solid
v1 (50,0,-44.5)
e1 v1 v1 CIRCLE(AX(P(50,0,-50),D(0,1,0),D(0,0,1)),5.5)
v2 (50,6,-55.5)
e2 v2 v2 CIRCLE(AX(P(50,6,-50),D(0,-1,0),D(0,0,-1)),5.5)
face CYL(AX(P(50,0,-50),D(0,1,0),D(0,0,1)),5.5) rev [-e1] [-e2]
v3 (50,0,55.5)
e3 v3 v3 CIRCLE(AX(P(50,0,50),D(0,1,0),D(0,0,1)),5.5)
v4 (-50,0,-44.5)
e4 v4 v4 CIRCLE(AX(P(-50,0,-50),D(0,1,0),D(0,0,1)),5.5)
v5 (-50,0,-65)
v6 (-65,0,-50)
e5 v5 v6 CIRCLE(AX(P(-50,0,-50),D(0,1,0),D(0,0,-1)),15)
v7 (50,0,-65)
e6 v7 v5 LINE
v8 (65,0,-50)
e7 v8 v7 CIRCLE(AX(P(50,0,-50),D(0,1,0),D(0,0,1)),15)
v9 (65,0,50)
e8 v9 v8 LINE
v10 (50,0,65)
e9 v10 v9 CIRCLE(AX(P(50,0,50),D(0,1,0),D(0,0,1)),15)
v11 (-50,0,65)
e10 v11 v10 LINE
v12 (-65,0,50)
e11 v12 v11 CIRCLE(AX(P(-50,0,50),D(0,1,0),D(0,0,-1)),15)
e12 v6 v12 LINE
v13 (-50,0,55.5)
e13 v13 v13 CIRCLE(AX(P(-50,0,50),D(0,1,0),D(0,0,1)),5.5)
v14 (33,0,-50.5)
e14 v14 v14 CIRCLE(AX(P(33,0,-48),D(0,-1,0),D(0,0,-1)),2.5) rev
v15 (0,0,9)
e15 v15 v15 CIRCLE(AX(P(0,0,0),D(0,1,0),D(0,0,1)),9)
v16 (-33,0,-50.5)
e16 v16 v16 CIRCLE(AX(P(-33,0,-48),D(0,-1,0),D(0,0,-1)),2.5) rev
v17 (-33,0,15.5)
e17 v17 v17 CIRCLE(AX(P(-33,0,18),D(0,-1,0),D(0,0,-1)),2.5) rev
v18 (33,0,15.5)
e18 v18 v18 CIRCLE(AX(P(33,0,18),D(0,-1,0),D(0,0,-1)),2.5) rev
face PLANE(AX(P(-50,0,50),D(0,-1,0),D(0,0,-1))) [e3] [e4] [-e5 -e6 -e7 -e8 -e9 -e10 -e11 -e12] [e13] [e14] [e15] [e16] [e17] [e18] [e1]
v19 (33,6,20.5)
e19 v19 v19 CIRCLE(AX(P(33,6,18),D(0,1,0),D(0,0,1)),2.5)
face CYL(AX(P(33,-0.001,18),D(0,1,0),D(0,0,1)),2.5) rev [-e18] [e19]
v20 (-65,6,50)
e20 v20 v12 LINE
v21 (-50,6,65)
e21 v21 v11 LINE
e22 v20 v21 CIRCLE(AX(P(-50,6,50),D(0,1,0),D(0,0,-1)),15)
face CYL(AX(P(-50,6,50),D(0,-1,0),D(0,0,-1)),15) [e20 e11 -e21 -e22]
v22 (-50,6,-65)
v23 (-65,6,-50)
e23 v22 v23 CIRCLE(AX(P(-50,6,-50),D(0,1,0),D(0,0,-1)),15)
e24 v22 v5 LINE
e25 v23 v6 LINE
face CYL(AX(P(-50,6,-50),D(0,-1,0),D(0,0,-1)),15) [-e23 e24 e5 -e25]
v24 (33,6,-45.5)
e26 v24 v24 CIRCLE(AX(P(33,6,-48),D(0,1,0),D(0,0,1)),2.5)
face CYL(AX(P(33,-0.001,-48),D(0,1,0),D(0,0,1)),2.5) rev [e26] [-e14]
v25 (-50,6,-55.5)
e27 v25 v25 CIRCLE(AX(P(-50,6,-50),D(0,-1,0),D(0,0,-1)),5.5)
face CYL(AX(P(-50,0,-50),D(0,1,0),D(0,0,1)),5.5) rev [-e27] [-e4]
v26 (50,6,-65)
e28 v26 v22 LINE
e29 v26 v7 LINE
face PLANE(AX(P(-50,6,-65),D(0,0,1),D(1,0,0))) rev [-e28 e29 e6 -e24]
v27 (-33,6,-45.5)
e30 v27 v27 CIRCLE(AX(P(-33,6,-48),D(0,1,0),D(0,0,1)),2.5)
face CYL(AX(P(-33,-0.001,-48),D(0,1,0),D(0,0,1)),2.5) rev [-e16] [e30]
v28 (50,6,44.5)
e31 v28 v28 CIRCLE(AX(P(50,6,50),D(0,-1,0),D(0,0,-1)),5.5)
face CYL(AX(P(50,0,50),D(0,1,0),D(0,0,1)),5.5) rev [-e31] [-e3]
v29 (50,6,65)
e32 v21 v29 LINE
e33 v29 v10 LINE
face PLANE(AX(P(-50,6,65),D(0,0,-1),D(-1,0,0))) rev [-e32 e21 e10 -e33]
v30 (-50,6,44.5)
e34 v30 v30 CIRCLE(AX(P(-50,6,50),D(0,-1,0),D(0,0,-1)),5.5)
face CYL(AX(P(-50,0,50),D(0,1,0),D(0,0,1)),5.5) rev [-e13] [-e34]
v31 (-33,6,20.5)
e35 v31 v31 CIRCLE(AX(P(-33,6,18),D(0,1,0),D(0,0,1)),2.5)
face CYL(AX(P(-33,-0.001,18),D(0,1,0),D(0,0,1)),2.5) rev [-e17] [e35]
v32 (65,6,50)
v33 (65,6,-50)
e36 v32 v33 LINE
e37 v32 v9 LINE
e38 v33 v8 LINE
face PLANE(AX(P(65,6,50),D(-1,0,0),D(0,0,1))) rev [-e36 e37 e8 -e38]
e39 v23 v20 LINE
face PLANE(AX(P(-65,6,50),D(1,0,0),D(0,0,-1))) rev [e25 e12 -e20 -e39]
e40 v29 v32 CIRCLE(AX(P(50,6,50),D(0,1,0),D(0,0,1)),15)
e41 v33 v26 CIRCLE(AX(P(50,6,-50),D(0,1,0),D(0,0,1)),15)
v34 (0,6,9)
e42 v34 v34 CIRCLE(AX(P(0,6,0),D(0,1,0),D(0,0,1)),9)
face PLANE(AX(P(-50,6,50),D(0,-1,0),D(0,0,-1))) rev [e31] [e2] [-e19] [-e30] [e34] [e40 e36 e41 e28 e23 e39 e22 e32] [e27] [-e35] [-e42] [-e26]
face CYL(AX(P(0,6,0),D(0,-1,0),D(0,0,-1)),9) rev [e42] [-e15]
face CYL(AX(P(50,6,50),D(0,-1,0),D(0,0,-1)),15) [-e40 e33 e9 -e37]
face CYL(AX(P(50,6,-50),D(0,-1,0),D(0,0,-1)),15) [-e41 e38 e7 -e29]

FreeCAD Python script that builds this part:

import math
import FreeCAD as App
import Part
import Sketcher

V = App.Vector

doc = App.newDocument("Part")
params = doc.addObject("Spreadsheet::Sheet", "Params")
for row, (alias, value) in enumerate([
    ("sketch1_diameter", "18 mm"),
    ("sketch1_radius", "15 mm"),
    ("sketch1_width", "100 mm"),
    ("pad1_length", "6 mm"),
    ("sketch2_diameter", "11 mm"),
    ("sketch3_diameter", "5 mm"),
    ("sketch4_diameter", "5 mm"),
    ("sketch5_diameter", "5 mm"),
    ("sketch6_diameter", "5 mm"),
], start=1):
    params.set(f"A{row}", alias)
    params.set(f"B{row}", "=" + value)
    params.setAlias(f"B{row}", alias)

body = doc.addObject("PartDesign::Body", "Body")

# Sketch on XZ plane
sketch1 = doc.addObject("Sketcher::SketchObject", "Sketch")
body.addObject(sketch1)
sketch1.AttachmentSupport = (doc.XZ_Plane, [""])
sketch1.MapMode = "FlatFace"
sketch1.addGeometry([
    Part.LineSegment(V(-50, 65, 0), V(50, 65, 0)),  # 0
    Part.ArcOfCircle(Part.Circle(V(50, 50, 0), V(0, 0, 1), 15), math.radians(0), math.radians(90)),  # 1
    Part.LineSegment(V(65, 50, 0), V(65, -50, 0)),  # 2
    Part.ArcOfCircle(Part.Circle(V(50, -50, 0), V(0, 0, 1), 15), math.radians(-90), math.radians(0)),  # 3
    Part.LineSegment(V(50, -65, 0), V(-50, -65, 0)),  # 4
    Part.ArcOfCircle(Part.Circle(V(-50, -50, 0), V(0, 0, 1), 15), math.radians(180), math.radians(270)),  # 5
    Part.LineSegment(V(-65, -50, 0), V(-65, 50, 0)),  # 6
    Part.ArcOfCircle(Part.Circle(V(-50, 50, 0), V(0, 0, 1), 15), math.radians(90), math.radians(180)),  # 7
    Part.Circle(V(0, 0, 0), V(0, 0, 1), 9),  # 8
], False)
sketch1.addConstraint([
    Sketcher.Constraint("Tangent", 0, 2, 1, 2),
    Sketcher.Constraint("Tangent", 1, 1, 2, 1),
    Sketcher.Constraint("Tangent", 2, 2, 3, 2),
    Sketcher.Constraint("Tangent", 3, 1, 4, 1),
    Sketcher.Constraint("Tangent", 4, 2, 5, 2),
    Sketcher.Constraint("Tangent", 5, 1, 6, 1),
    Sketcher.Constraint("Tangent", 6, 2, 7, 2),
    Sketcher.Constraint("Tangent", 7, 1, 0, 1),
    Sketcher.Constraint("Horizontal", 0),
    Sketcher.Constraint("Vertical", 2),
    Sketcher.Constraint("Horizontal", 4),
    Sketcher.Constraint("Vertical", 6),
    Sketcher.Constraint("Coincident", 8, 3, -1, 1),
    Sketcher.Constraint("Equal", 1, 3),
    Sketcher.Constraint("Equal", 3, 5),
    Sketcher.Constraint("Equal", 5, 7),
    Sketcher.Constraint("Symmetric", 1, 3, 5, 3, -1, 1),
    Sketcher.Constraint("Equal", 4, 2),
    Sketcher.Constraint("Diameter", 8, 18.0),
    Sketcher.Constraint("Radius", 1, 15.0),
    Sketcher.Constraint("DistanceX", 0, 1, 0, 2, 100.0),
])
sketch1.setExpression("Constraints[18]", "Params.sketch1_diameter")
sketch1.setExpression("Constraints[19]", "Params.sketch1_radius")
sketch1.setExpression("Constraints[20]", "Params.sketch1_width")
pad1 = doc.addObject("PartDesign::Pad", "Pad")
body.addObject(pad1)
pad1.Profile = sketch1
pad1.setExpression("Length", "Params.pad1_length")
pad1.Reversed = True

# Sketch on XZ plane
sketch2 = doc.addObject("Sketcher::SketchObject", "Sketch001")
body.addObject(sketch2)
sketch2.AttachmentSupport = (doc.XZ_Plane, [""])
sketch2.MapMode = "FlatFace"
sketch2.AttachmentOffset = App.Placement(V(0, 0, -6), App.Rotation())
sketch2.addGeometry([
    Part.Circle(V(-50, -50, 0), V(0, 0, 1), 6),
    Part.Circle(V(50, -50, 0), V(0, 0, 1), 6),
    Part.Circle(V(50, 50, 0), V(0, 0, 1), 6),
    Part.Circle(V(-50, 50, 0), V(0, 0, 1), 6),
], False)
sketch2.addConstraint([
    Sketcher.Constraint("Equal", 0, 1),
    Sketcher.Constraint("Equal", 1, 2),
    Sketcher.Constraint("Equal", 2, 3),
    Sketcher.Constraint("Symmetric", 0, 3, 2, 3, -1, 1),
    Sketcher.Constraint("Symmetric", 1, 3, 3, 3, -1, 1),
    Sketcher.Constraint("Symmetric", 0, 3, 1, 3, -2),
    Sketcher.Constraint("Diameter", 0, 11.0),
    Sketcher.Constraint("DistanceX", 0, 3, -1, 1, 50.0),
    Sketcher.Constraint("DistanceY", 0, 3, -1, 1, 50.0),
])
sketch2.setExpression("Constraints[6]", "Params.sketch2_diameter")
pocket1 = doc.addObject("PartDesign::Pocket", "Pocket")
body.addObject(pocket1)
pocket1.Profile = sketch2
pocket1.Type = "ThroughAll"
pocket1.Midplane = True

# Sketch on XZ plane
sketch3 = doc.addObject("Sketcher::SketchObject", "Sketch002")
body.addObject(sketch3)
sketch3.AttachmentSupport = (doc.XZ_Plane, [""])
sketch3.MapMode = "FlatFace"
sketch3.AttachmentOffset = App.Placement(V(0, 0, -6), App.Rotation())
sketch3.addGeometry(Part.Circle(V(33, -48, 0), V(0, 0, 1), 2.5), False)
sketch3.addConstraint([
    Sketcher.Constraint("Diameter", 0, 5.0),
    Sketcher.Constraint("DistanceX", -1, 1, 0, 3, 33.0),
    Sketcher.Constraint("DistanceY", 0, 3, -1, 1, 48.0),
])
sketch3.setExpression("Constraints[0]", "Params.sketch3_diameter")
pocket2 = doc.addObject("PartDesign::Pocket", "Pocket001")
body.addObject(pocket2)
pocket2.Profile = sketch3
pocket2.Type = "UpToFirst"
pocket2.Reversed = True

# Sketch on XZ plane
sketch4 = doc.addObject("Sketcher::SketchObject", "Sketch003")
body.addObject(sketch4)
sketch4.AttachmentSupport = (doc.XZ_Plane, [""])
sketch4.MapMode = "FlatFace"
sketch4.AttachmentOffset = App.Placement(V(0, 0, -6), App.Rotation())
sketch4.addGeometry(Part.Circle(V(33, 18, 0), V(0, 0, 1), 2.5), False)
sketch4.addConstraint([
    Sketcher.Constraint("Diameter", 0, 5.0),
    Sketcher.Constraint("DistanceX", -1, 1, 0, 3, 33.0),
    Sketcher.Constraint("DistanceY", -1, 1, 0, 3, 18.0),
])
sketch4.setExpression("Constraints[0]", "Params.sketch4_diameter")
pocket3 = doc.addObject("PartDesign::Pocket", "Pocket002")
body.addObject(pocket3)
pocket3.Profile = sketch4
pocket3.Type = "UpToFirst"
pocket3.Reversed = True

# Sketch on XZ plane
sketch5 = doc.addObject("Sketcher::SketchObject", "Sketch004")
body.addObject(sketch5)
sketch5.AttachmentSupport = (doc.XZ_Plane, [""])
sketch5.MapMode = "FlatFace"
sketch5.AttachmentOffset = App.Placement(V(0, 0, -6), App.Rotation())
sketch5.addGeometry(Part.Circle(V(-33, -48, 0), V(0, 0, 1), 2.5), False)
sketch5.addConstraint([
    Sketcher.Constraint("Diameter", 0, 5.0),
    Sketcher.Constraint("DistanceX", 0, 3, -1, 1, 33.0),
    Sketcher.Constraint("DistanceY", 0, 3, -1, 1, 48.0),
])
sketch5.setExpression("Constraints[0]", "Params.sketch5_diameter")
pocket4 = doc.addObject("PartDesign::Pocket", "Pocket003")
body.addObject(pocket4)
pocket4.Profile = sketch5
pocket4.Type = "UpToFirst"
pocket4.Reversed = True

# Sketch on XZ plane
sketch6 = doc.addObject("Sketcher::SketchObject", "Sketch005")
body.addObject(sketch6)
sketch6.AttachmentSupport = (doc.XZ_Plane, [""])
sketch6.MapMode = "FlatFace"
sketch6.AttachmentOffset = App.Placement(V(0, 0, -6), App.Rotation())
sketch6.addGeometry(Part.Circle(V(-33, 18, 0), V(0, 0, 1), 2.5), False)
sketch6.addConstraint([
    Sketcher.Constraint("Diameter", 0, 5.0),
    Sketcher.Constraint("DistanceX", 0, 3, -1, 1, 33.0),
    Sketcher.Constraint("DistanceY", -1, 1, 0, 3, 18.0),
])
sketch6.setExpression("Constraints[0]", "Params.sketch6_diameter")
pocket5 = doc.addObject("PartDesign::Pocket", "Pocket004")
body.addObject(pocket5)
pocket5.Profile = sketch6
pocket5.Type = "UpToFirst"
pocket5.Reversed = True

doc.recompute()
